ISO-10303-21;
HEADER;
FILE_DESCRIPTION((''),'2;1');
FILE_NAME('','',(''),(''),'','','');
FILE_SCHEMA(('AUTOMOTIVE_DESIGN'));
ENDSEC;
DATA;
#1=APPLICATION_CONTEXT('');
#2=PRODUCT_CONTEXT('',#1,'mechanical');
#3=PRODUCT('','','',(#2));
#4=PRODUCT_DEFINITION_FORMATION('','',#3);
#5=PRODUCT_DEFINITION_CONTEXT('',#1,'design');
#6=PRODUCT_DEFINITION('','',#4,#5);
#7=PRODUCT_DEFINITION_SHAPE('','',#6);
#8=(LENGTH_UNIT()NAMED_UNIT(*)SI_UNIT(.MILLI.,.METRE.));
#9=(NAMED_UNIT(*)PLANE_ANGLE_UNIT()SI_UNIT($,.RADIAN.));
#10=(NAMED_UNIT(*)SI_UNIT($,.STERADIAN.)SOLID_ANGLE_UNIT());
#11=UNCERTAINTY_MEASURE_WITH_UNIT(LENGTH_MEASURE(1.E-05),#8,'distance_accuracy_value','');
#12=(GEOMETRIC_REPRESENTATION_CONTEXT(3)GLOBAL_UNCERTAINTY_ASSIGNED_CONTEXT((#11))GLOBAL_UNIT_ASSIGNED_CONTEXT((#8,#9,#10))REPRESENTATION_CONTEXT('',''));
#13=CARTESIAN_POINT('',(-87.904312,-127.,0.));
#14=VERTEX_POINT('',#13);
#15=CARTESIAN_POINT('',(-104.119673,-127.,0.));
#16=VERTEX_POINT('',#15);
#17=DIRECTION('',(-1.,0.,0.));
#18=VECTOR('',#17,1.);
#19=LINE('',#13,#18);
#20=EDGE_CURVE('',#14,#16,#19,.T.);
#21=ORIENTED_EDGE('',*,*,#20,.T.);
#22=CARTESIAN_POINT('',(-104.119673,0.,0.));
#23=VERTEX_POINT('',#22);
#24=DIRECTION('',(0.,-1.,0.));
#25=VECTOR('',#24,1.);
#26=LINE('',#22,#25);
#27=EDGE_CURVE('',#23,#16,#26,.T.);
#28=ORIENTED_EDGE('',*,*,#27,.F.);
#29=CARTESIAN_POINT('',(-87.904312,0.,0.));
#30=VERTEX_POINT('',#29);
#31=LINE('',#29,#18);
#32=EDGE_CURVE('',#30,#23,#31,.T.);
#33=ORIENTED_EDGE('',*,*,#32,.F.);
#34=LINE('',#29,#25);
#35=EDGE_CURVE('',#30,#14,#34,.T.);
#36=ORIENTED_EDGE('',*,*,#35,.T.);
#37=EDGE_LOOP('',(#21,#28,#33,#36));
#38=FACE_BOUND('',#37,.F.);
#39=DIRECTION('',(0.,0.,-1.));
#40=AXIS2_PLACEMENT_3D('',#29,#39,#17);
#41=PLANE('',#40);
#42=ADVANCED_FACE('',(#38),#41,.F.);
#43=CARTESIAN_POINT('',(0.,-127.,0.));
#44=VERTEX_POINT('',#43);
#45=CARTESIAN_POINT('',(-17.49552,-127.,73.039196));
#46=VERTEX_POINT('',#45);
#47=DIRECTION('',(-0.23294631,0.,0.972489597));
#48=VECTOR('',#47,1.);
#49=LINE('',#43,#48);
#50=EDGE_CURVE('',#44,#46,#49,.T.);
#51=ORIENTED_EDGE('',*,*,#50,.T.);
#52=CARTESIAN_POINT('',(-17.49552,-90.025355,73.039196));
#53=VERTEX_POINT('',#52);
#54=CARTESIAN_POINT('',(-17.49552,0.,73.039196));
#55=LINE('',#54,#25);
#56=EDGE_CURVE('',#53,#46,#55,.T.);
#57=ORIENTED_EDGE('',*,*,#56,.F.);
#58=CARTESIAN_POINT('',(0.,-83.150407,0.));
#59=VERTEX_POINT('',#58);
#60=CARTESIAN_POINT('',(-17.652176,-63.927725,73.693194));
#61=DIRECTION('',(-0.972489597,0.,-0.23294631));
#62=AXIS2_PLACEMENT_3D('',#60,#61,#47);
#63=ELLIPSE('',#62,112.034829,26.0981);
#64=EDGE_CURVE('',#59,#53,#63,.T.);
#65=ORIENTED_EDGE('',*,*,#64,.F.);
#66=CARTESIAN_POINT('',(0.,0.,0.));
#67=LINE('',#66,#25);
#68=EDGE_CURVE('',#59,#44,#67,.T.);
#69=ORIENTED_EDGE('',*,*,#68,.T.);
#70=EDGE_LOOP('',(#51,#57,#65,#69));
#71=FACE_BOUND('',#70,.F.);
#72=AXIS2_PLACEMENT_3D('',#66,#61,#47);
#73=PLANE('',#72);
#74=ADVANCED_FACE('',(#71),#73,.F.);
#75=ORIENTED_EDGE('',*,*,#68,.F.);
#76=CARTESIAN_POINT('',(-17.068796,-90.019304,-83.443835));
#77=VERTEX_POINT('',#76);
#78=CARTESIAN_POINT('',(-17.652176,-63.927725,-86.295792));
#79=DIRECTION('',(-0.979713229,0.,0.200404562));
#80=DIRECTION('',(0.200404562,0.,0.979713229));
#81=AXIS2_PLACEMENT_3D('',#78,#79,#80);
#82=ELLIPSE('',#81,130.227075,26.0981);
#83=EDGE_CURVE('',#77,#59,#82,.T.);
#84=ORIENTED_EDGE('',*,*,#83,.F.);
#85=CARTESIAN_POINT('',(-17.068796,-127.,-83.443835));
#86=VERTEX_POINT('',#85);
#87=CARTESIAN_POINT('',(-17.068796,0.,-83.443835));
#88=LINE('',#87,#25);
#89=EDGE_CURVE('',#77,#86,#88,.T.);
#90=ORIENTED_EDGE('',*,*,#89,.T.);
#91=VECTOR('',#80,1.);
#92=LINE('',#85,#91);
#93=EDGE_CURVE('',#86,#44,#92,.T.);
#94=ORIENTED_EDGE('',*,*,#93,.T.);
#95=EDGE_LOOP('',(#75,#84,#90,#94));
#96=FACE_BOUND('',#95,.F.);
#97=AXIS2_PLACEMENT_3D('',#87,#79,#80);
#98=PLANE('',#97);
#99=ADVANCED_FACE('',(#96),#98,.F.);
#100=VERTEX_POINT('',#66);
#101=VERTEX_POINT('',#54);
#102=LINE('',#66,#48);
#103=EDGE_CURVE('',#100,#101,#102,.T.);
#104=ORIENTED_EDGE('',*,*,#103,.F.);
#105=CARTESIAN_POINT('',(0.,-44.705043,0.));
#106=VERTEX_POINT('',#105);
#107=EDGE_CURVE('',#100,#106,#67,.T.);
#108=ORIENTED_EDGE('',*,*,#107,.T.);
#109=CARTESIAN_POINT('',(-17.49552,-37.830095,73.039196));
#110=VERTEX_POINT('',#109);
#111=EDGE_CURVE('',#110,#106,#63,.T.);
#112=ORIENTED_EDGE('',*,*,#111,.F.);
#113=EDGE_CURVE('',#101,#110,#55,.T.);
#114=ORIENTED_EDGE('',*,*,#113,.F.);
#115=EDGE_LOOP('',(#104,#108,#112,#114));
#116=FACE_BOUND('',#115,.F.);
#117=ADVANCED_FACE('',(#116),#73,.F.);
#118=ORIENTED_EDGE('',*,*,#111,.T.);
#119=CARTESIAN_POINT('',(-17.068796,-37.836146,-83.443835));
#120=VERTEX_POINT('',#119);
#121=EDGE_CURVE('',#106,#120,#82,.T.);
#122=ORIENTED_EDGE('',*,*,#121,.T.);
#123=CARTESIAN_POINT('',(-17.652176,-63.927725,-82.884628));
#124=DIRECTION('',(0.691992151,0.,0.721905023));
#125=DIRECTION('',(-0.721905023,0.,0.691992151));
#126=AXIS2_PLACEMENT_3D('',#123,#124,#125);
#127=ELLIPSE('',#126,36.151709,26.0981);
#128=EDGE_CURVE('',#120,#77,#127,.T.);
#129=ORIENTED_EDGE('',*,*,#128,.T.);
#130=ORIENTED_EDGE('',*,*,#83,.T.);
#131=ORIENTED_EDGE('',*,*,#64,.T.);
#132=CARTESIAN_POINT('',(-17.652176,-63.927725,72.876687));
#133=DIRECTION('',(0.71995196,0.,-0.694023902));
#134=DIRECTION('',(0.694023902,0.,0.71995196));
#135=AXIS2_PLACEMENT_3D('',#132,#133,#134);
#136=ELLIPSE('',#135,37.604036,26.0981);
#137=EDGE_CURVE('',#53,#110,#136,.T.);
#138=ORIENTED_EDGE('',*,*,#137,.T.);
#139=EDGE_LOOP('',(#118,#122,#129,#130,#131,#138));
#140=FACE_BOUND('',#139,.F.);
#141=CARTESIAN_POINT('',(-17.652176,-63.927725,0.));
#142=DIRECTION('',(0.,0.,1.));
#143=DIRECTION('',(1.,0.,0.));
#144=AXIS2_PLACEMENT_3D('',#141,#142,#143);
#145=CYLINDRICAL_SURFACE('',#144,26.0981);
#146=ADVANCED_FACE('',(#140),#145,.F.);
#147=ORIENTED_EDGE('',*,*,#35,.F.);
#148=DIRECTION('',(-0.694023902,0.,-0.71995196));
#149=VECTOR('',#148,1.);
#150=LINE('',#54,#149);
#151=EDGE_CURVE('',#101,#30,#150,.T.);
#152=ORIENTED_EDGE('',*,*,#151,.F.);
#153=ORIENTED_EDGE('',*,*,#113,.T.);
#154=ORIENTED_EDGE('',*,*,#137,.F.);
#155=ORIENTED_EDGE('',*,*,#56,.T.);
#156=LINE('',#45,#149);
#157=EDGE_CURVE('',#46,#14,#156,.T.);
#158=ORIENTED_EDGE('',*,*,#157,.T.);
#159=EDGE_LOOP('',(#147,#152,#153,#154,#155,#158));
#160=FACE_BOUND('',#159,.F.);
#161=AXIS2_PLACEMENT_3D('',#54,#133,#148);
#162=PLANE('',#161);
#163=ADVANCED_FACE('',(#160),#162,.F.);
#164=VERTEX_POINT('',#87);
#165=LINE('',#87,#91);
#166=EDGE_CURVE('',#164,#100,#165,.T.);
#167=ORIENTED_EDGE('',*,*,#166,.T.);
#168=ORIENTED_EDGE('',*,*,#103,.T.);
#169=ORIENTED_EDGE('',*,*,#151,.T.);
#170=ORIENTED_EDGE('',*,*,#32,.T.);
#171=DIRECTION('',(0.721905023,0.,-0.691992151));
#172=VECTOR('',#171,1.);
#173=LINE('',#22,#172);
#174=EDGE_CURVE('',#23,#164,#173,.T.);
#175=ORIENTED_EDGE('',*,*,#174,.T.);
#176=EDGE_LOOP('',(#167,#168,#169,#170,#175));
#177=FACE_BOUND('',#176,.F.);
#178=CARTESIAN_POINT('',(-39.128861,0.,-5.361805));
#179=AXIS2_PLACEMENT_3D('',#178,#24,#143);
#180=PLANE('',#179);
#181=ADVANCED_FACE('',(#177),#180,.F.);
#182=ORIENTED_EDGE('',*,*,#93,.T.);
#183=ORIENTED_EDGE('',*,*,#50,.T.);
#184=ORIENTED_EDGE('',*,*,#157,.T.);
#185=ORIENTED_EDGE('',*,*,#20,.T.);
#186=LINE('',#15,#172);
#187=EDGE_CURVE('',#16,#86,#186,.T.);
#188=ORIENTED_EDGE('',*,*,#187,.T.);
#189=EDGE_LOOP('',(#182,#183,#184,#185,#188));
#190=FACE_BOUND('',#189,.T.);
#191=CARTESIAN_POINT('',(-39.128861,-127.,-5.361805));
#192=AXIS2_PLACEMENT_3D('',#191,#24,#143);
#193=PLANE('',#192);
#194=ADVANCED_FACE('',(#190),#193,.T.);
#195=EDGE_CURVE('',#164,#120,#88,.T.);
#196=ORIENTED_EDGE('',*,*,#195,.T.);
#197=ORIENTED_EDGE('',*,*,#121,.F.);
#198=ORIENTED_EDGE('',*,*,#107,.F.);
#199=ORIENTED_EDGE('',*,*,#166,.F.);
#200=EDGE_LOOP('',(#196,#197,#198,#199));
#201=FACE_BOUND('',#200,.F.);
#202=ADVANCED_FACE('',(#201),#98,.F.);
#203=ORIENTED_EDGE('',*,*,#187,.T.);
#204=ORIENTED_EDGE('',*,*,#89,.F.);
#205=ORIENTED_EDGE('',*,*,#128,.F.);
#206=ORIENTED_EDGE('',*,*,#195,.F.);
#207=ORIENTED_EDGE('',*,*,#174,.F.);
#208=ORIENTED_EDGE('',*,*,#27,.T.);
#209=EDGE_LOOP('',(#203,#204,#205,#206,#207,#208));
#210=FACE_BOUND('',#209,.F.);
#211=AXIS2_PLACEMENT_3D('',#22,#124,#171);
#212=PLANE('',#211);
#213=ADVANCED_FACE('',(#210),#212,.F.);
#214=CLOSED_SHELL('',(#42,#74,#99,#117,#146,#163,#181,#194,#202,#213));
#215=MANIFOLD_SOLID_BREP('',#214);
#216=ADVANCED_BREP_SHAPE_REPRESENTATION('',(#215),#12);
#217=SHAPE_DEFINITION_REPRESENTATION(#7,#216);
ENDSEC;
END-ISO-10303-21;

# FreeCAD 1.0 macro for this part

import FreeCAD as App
import Part
import Sketcher
from FreeCAD import Vector
Q = App.Units.Quantity

doc = App.newDocument("Part")
params = doc.addObject("Spreadsheet::Sheet", "Params")
for row, (alias, value) in enumerate([
    ("pad1_length", "5 in"),
    ("pocket1_length", "600 in"),
], start=1):
    params.set(f"A{row}", alias)
    params.set(f"B{row}", "=" + value)
    params.setAlias(f"B{row}", alias)

body = doc.addObject("PartDesign::Body", "Body")

sketch1 = body.newObject("Sketcher::SketchObject", "Sketch")
sketch1.AttachmentSupport = (doc.getObject("XZ_Plane"), [""])
sketch1.MapMode = "FlatFace"
sketch1.addGeometry([
    Part.LineSegment(Vector(-17.49552, 73.039196, 0), Vector(-87.904312, 0, 0)),
    Part.LineSegment(Vector(-87.904312, 0, 0), Vector(-104.119673, 0, 0)),
    Part.LineSegment(Vector(-104.119673, 0, 0), Vector(-17.068796, -83.443835, 0)),
    Part.LineSegment(Vector(-17.068796, -83.443835, 0), Vector(0, 0, 0)),
    Part.LineSegment(Vector(0, 0, 0), Vector(-17.49552, 73.039196, 0)),
], False)
sketch1.addConstraint([
    Sketcher.Constraint("Coincident", 0, 2, 1, 1),
    Sketcher.Constraint("Coincident", 1, 2, 2, 1),
    Sketcher.Constraint("Coincident", 2, 2, 3, 1),
    Sketcher.Constraint("Coincident", 3, 2, 4, 1),
    Sketcher.Constraint("Coincident", 4, 2, 0, 1),
    Sketcher.Constraint("Horizontal", 1),
    Sketcher.Constraint("Coincident", 3, 2, -1, 1),
    Sketcher.Constraint("PointOnObject", 0, 2, -1),
    Sketcher.Constraint("DistanceX", 1, 2, 1, 1, Q("0.6384 in")),
    Sketcher.Constraint("DistanceX", 2, 2, -1, 1, Q("0.6719998 in")),
    Sketcher.Constraint("DistanceX", 4, 2, -1, 1, Q("0.6888 in")),
    Sketcher.Constraint("DistanceX", 0, 2, 2, 2, Q("2.7887998 in")),
    Sketcher.Constraint("DistanceY", 2, 2, 4, 2, 156.483031),
    Sketcher.Constraint("Distance", 0, 101.450097),
])
pad1 = body.newObject("PartDesign::Pad", "Pad")
pad1.Profile = sketch1
pad1.setExpression("Length", "Params.pad1_length")

sketch2 = body.newObject("Sketcher::SketchObject", "Sketch001")
sketch2.AttachmentSupport = (doc.getObject("XY_Plane"), [""])
sketch2.MapMode = "FlatFace"
sketch2.addGeometry(Part.Circle(Vector(-17.652176, -63.927725, 0), Vector(0, 0, 1), 26.0981), False)
sketch2.addConstraint([
    Sketcher.Constraint("Diameter", 0, 52.1962),
    Sketcher.Constraint("DistanceX", 0, 3, -1, 1, 17.652176),
    Sketcher.Constraint("DistanceY", 0, 3, -1, 1, 63.927725),
])
pocket1 = body.newObject("PartDesign::Pocket", "Pocket")
pocket1.Profile = sketch2
pocket1.setExpression("Length", "Params.pocket1_length")
pocket1.Midplane = True

doc.recompute()
